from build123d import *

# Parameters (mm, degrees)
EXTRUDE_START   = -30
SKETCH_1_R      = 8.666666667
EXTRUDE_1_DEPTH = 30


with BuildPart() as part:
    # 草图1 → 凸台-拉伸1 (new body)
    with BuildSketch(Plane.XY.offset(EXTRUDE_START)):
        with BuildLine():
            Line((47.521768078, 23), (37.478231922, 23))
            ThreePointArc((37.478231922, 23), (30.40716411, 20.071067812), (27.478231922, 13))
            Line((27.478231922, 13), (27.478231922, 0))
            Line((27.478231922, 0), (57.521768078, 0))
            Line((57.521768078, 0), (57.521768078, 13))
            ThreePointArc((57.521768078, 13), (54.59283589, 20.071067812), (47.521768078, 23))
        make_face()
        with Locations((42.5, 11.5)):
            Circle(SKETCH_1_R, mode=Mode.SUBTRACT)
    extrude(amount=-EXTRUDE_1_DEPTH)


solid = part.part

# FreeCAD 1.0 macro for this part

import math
import FreeCAD as App
import Part
import Sketcher

V = App.Vector
Q = App.Units.Quantity

doc = App.newDocument("Part")
body = doc.addObject("PartDesign::Body", "Body")

# Sketch on XY plane
sketch1 = body.newObject("Sketcher::SketchObject", "Sketch")
sketch1.AttachmentSupport = (doc.getObject("XY_Plane"), [""])
sketch1.MapMode = "FlatFace"
sketch1.AttachmentOffset = App.Placement(V(0, 0, -30), App.Rotation())
sketch1.addGeometry([
    Part.LineSegment(V(48, 23, 0), V(37, 23, 0)),  # 0
    Part.ArcOfCircle(Part.Circle(V(37, 13, 0), V(0, 0, 1), 10), math.radians(90), math.radians(180)),  # 1
    Part.LineSegment(V(27, 13, 0), V(27, 0, 0)),  # 2
    Part.LineSegment(V(27, 0, 0), V(58, 0, 0)),  # 3
    Part.LineSegment(V(58, 0, 0), V(58, 13, 0)),  # 4
    Part.ArcOfCircle(Part.Circle(V(48, 13, 0), V(0, 0, 1), 10), math.radians(0), math.radians(90)),  # 5
    Part.Circle(V(42, 12, 0), V(0, 0, 1), 9),  # 6
], False)
sketch1.addConstraint([
    Sketcher.Constraint("Tangent", 0, 2, 1, 1),
    Sketcher.Constraint("Tangent", 1, 2, 2, 1),
    Sketcher.Constraint("Coincident", 2, 2, 3, 1),
    Sketcher.Constraint("Coincident", 3, 2, 4, 1),
    Sketcher.Constraint("Tangent", 4, 2, 5, 1),
    Sketcher.Constraint("Tangent", 5, 2, 0, 1),
    Sketcher.Constraint("Horizontal", 0),
    Sketcher.Constraint("Vertical", 2),
    Sketcher.Constraint("Horizontal", 3),
    Sketcher.Constraint("Vertical", 4),
    Sketcher.Constraint("Equal", 1, 5),
    Sketcher.Constraint("PointOnObject", 2, 2, -1),
    Sketcher.Constraint("Radius", 1, Q("10 mm")),
    Sketcher.Constraint("DistanceY", 2, 2, 2, 1, Q("13 mm")),
    Sketcher.Constraint("DistanceX", -1, 1, 6, 3, Q("42.5 mm")),
    Sketcher.Constraint("DistanceY", -1, 1, 6, 3, Q("11.5 mm")),
    Sketcher.Constraint("Diameter", 6, Q("17.333333 mm")),
    Sketcher.Constraint("DistanceX", 0, 2, 0, 1, Q("10.043536 mm")),
    Sketcher.Constraint("DistanceX", -1, 1, 1, 3, Q("37.478232 mm")),
])
pad1 = body.newObject("PartDesign::Pad", "Pad")
pad1.Profile = sketch1
pad1.Length = 30
pad1.Reversed = True

doc.recompute()
